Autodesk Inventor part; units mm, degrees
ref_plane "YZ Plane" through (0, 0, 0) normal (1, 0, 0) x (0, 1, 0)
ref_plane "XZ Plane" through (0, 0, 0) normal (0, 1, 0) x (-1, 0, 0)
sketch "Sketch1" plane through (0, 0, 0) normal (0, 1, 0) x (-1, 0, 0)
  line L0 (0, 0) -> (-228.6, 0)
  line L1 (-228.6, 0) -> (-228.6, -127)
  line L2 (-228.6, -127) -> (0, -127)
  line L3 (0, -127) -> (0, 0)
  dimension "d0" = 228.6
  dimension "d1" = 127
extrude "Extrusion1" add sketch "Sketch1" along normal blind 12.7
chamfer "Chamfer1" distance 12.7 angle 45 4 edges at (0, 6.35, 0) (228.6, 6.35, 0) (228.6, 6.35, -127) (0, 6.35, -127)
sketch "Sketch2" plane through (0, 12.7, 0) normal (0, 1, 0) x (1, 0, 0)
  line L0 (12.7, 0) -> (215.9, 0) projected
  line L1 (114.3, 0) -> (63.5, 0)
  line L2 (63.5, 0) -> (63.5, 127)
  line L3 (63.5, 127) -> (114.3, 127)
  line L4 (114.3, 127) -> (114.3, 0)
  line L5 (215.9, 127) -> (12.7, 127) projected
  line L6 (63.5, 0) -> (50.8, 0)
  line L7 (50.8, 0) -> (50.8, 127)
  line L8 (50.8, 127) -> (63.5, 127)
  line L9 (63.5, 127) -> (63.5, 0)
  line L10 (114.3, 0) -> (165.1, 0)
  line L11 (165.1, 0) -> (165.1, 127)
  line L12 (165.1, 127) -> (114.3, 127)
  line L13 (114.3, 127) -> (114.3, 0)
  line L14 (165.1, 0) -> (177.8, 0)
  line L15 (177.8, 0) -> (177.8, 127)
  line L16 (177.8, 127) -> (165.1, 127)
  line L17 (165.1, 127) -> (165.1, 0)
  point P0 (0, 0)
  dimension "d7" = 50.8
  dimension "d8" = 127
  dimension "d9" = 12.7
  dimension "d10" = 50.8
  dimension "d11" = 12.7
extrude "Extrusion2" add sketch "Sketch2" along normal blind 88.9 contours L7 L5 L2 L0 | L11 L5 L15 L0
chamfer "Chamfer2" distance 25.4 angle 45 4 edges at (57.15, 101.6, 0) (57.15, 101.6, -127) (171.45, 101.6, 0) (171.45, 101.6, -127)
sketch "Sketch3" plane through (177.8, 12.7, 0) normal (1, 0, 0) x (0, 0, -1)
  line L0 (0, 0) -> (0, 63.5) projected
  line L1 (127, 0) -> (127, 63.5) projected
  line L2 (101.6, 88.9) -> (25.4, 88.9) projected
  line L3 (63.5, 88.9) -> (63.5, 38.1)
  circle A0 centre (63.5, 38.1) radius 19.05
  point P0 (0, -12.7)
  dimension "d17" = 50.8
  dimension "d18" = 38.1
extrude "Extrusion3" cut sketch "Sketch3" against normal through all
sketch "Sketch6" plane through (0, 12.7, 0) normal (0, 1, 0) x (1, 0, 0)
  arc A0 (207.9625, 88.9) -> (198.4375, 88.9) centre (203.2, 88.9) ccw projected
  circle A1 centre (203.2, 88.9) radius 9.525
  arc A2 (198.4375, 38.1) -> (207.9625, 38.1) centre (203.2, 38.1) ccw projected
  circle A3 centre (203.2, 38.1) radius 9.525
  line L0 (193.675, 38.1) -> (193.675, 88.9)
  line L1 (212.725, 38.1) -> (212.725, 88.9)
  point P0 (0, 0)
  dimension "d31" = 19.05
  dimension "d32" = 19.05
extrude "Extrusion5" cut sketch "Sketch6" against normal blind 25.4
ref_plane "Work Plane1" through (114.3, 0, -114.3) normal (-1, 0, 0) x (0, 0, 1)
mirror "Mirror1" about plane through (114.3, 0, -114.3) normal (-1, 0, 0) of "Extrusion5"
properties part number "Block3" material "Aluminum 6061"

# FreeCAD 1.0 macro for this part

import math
import FreeCAD as App
import Part
import Sketcher
from FreeCAD import Vector
Q = App.Units.Quantity


def edges_at(feature, points):
    """Names of the edges that pass closest to the given points."""
    edges = feature.Shape.Edges
    near = lambda p: min(range(len(edges)), key=lambda i: edges[i].distToShape(Part.Vertex(*p))[0])
    return sorted({f"Edge{near(p) + 1}" for p in points})

doc = App.newDocument("Part")
params = doc.addObject("Spreadsheet::Sheet", "Params")
for row, (alias, value) in enumerate([
    ("sketch1_width", "9 in"),
    ("sketch1_height", "5 in"),
    ("pad1_length", "0.5 in"),
    ("chamfer_size", "0.5 in"),
    ("sketch2_height", "5 in"),
    ("sketch2_width", "0.5 in"),
    ("pad2_length", "3.5 in"),
    ("chamfer2_size", "1 in"),
    ("sketch3_diameter", "1.5 in"),
    ("sketch4_radius", "0.375 in"),
    ("sketch4_height", "2 in"),
    ("pocket2_length", "1 in"),
], start=1):
    params.set(f"A{row}", alias)
    params.set(f"B{row}", "=" + value)
    params.setAlias(f"B{row}", alias)

body = doc.addObject("PartDesign::Body", "Body")

sketch1 = body.newObject("Sketcher::SketchObject", "Sketch")
sketch1.AttachmentSupport = (doc.getObject("XZ_Plane"), [""])
sketch1.MapMode = "FlatFace"
sketch1.addGeometry([
    Part.LineSegment(Vector(0, -127, 0), Vector(0, 0, 0)),
    Part.LineSegment(Vector(0, 0, 0), Vector(229, 0, 0)),
    Part.LineSegment(Vector(229, 0, 0), Vector(229, -127, 0)),
    Part.LineSegment(Vector(229, -127, 0), Vector(0, -127, 0)),
], False)
sketch1.addConstraint([
    Sketcher.Constraint("Coincident", 0, 2, 1, 1),
    Sketcher.Constraint("Coincident", 1, 2, 2, 1),
    Sketcher.Constraint("Coincident", 2, 2, 3, 1),
    Sketcher.Constraint("Coincident", 3, 2, 0, 1),
    Sketcher.Constraint("Vertical", 0),
    Sketcher.Constraint("Horizontal", 1),
    Sketcher.Constraint("Vertical", 2),
    Sketcher.Constraint("Horizontal", 3),
    Sketcher.Constraint("Coincident", 0, 2, -1, 1),
    Sketcher.Constraint("DistanceX", 1, 1, 1, 2, Q("9 in")),
    Sketcher.Constraint("DistanceY", 0, 1, 0, 2, Q("5 in")),
])
sketch1.setExpression("Constraints[9]", "Params.sketch1_width")
sketch1.setExpression("Constraints[10]", "Params.sketch1_height")
pad1 = body.newObject("PartDesign::Pad", "Pad")
pad1.Profile = sketch1
pad1.setExpression("Length", "Params.pad1_length")
pad1.Reversed = True
doc.recompute()

chamfer = body.newObject("PartDesign::Chamfer", "Chamfer")
chamfer.Base = (pad1, edges_at(pad1, [
    (0, 6.35, 0),
    (228.6, 6.35, 0),
    (228.6, 6.35, -127),
    (0, 6.35, -127),
]))
chamfer.setExpression("Size", "Params.chamfer_size")

sketch2 = body.newObject("Sketcher::SketchObject", "Sketch001")
sketch2.AttachmentSupport = (doc.getObject("XZ_Plane"), [""])
sketch2.MapMode = "FlatFace"
sketch2.AttachmentOffset = App.Placement(Vector(0, 0, -0.5 * 25.4), App.Rotation())
sketch2.addGeometry([
    Part.LineSegment(Vector(51, -127, 0), Vector(51, 0, 0)),
    Part.LineSegment(Vector(51, 0, 0), Vector(64, 0, 0)),
    Part.LineSegment(Vector(64, 0, 0), Vector(64, -127, 0)),
    Part.LineSegment(Vector(64, -127, 0), Vector(51, -127, 0)),
    Part.LineSegment(Vector(165, -127, 0), Vector(165, 0, 0)),
    Part.LineSegment(Vector(165, 0, 0), Vector(178, 0, 0)),
    Part.LineSegment(Vector(178, 0, 0), Vector(178, -127, 0)),
    Part.LineSegment(Vector(178, -127, 0), Vector(165, -127, 0)),
], False)
sketch2.addConstraint([
    Sketcher.Constraint("Coincident", 0, 2, 1, 1),
    Sketcher.Constraint("Coincident", 1, 2, 2, 1),
    Sketcher.Constraint("Coincident", 2, 2, 3, 1),
    Sketcher.Constraint("Coincident", 3, 2, 0, 1),
    Sketcher.Constraint("Coincident", 4, 2, 5, 1),
    Sketcher.Constraint("Coincident", 5, 2, 6, 1),
    Sketcher.Constraint("Coincident", 6, 2, 7, 1),
    Sketcher.Constraint("Coincident", 7, 2, 4, 1),
    Sketcher.Constraint("Vertical", 0),
    Sketcher.Constraint("Horizontal", 1),
    Sketcher.Constraint("Vertical", 2),
    Sketcher.Constraint("Horizontal", 3),
    Sketcher.Constraint("Vertical", 4),
    Sketcher.Constraint("Horizontal", 5),
    Sketcher.Constraint("Vertical", 6),
    Sketcher.Constraint("Horizontal", 7),
    Sketcher.Constraint("PointOnObject", 0, 2, -1),
    Sketcher.Constraint("PointOnObject", 4, 2, -1),
    Sketcher.Constraint("Horizontal", 3, 2, 6, 2),
    Sketcher.Constraint("Equal", 3, 5),
    Sketcher.Constraint("DistanceY", 0, 1, 0, 2, Q("5 in")),
    Sketcher.Constraint("DistanceX", 1, 1, 1, 2, Q("0.5 in")),
    Sketcher.Constraint("DistanceX", -1, 1, 0, 2, Q("2 in")),
    Sketcher.Constraint("DistanceX", 0, 2, 5, 2, Q("5 in")),
])
sketch2.setExpression("Constraints[20]", "Params.sketch2_height")
sketch2.setExpression("Constraints[21]", "Params.sketch2_width")
pad2 = body.newObject("PartDesign::Pad", "Pad001")
pad2.Profile = sketch2
pad2.setExpression("Length", "Params.pad2_length")
pad2.Reversed = True
doc.recompute()

chamfer2 = body.newObject("PartDesign::Chamfer", "Chamfer001")
chamfer2.Base = (pad2, edges_at(pad2, [
    (57.15, 101.6, 0),
    (57.15, 101.6, -127),
    (171.45, 101.6, 0),
    (171.45, 101.6, -127),
]))
chamfer2.setExpression("Size", "Params.chamfer2_size")

sketch3 = body.newObject("Sketcher::SketchObject", "Sketch002")
sketch3.AttachmentSupport = (doc.getObject("YZ_Plane"), [""])
sketch3.MapMode = "FlatFace"
sketch3.AttachmentOffset = App.Placement(Vector(0, 0, 7 * 25.4), App.Rotation())
sketch3.addGeometry(Part.Circle(Vector(51, -64, 0), Vector(0, 0, 1), 19), False)
sketch3.addConstraint([
    Sketcher.Constraint("Diameter", 0, Q("1.5 in")),
    Sketcher.Constraint("DistanceX", -1, 1, 0, 3, Q("2 in")),
    Sketcher.Constraint("DistanceY", 0, 3, -1, 1, Q("2.5 in")),
])
sketch3.setExpression("Constraints[0]", "Params.sketch3_diameter")
pocket1 = body.newObject("PartDesign::Pocket", "Pocket")
pocket1.Profile = sketch3
pocket1.Type = "ThroughAll"

sketch4 = body.newObject("Sketcher::SketchObject", "Sketch003")
sketch4.AttachmentSupport = (doc.getObject("XZ_Plane"), [""])
sketch4.MapMode = "FlatFace"
sketch4.AttachmentOffset = App.Placement(Vector(0, 0, -0.5 * 25.4), App.Rotation())
sketch4.addGeometry([
    Part.ArcOfCircle(Part.Circle(Vector(203, -89, 0), Vector(0, 0, 1), 10), math.radians(180), math.radians(360)),
    Part.LineSegment(Vector(194, -89, 0), Vector(194, -38, 0)),
    Part.ArcOfCircle(Part.Circle(Vector(203, -38, 0), Vector(0, 0, 1), 10), math.radians(0), math.radians(180)),
    Part.LineSegment(Vector(213, -38, 0), Vector(213, -89, 0)),
], False)
sketch4.addConstraint([
    Sketcher.Constraint("Tangent", 0, 1, 1, 1),
    Sketcher.Constraint("Tangent", 1, 2, 2, 2),
    Sketcher.Constraint("Tangent", 2, 1, 3, 1),
    Sketcher.Constraint("Tangent", 3, 2, 0, 2),
    Sketcher.Constraint("Vertical", 1),
    Sketcher.Constraint("Vertical", 3),
    Sketcher.Constraint("Radius", 0, Q("0.375 in")),
    Sketcher.Constraint("DistanceY", 1, 1, 1, 2, Q("2 in")),
    Sketcher.Constraint("DistanceX", -1, 1, 0, 3, Q("8 in")),
    Sketcher.Constraint("DistanceY", 0, 3, -1, 1, Q("3.5 in")),
])
sketch4.setExpression("Constraints[6]", "Params.sketch4_radius")
sketch4.setExpression("Constraints[7]", "Params.sketch4_height")
pocket2 = body.newObject("PartDesign::Pocket", "Pocket001")
pocket2.Profile = sketch4
pocket2.setExpression("Length", "Params.pocket2_length")
pocket2.Reversed = True
doc.recompute()

datumplane = body.newObject("PartDesign::Plane", "DatumPlane")
datumplane.AttachmentSupport = (doc.getObject("YZ_Plane"), [""])
datumplane.MapMode = "FlatFace"
datumplane.AttachmentOffset = App.Placement(Vector(0, 0, 4.5 * 25.4), App.Rotation())
mirrored = body.newObject("PartDesign::Mirrored", "Mirrored")
mirrored.Originals = [pocket2]
mirrored.MirrorPlane = (datumplane, [""])
body.Tip = mirrored

doc.recompute()
